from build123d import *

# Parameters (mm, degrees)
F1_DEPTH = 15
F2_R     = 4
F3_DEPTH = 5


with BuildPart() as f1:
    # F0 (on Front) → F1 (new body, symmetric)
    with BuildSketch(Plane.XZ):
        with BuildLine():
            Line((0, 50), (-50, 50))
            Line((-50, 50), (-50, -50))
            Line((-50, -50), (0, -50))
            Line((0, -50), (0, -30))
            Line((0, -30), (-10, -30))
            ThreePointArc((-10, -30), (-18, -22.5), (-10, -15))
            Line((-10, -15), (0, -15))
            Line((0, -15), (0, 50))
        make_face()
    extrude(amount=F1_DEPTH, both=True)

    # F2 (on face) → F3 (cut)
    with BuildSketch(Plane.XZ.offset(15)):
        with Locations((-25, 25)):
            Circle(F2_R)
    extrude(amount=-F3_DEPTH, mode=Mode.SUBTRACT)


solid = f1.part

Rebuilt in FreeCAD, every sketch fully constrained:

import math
import FreeCAD as App
import Part
import Sketcher
from FreeCAD import Vector

doc = App.newDocument("Part")
params = doc.addObject("Spreadsheet::Sheet", "Params")
for row, (alias, value) in enumerate([
    ("sketch1_width", "50 mm"),
    ("sketch1_width2", "10 mm"),
    ("sketch1_height", "100 mm"),
    ("sketch1_height2", "20 mm"),
    ("sketch1_height3", "65 mm"),
    ("pad1_length", "30 mm"),
    ("sketch2_diameter", "8 mm"),
    ("pocket1_length", "5 mm"),
], start=1):
    params.set(f"A{row}", alias)
    params.set(f"B{row}", "=" + value)
    params.setAlias(f"B{row}", alias)

body = doc.addObject("PartDesign::Body", "Body")

# Sketch on XZ plane
sketch1 = doc.addObject("Sketcher::SketchObject", "Sketch")
body.addObject(sketch1)
sketch1.AttachmentSupport = (doc.XZ_Plane, [""])
sketch1.MapMode = "FlatFace"
sketch1.addGeometry([
    Part.LineSegment(Vector(0, 50, 0), Vector(-50, 50, 0)),  # 0
    Part.LineSegment(Vector(-50, 50, 0), Vector(-50, -50, 0)),  # 1
    Part.LineSegment(Vector(-50, -50, 0), Vector(0, -50, 0)),  # 2
    Part.LineSegment(Vector(0, -50, 0), Vector(0, -30, 0)),  # 3
    Part.LineSegment(Vector(0, -30, 0), Vector(-10, -30, 0)),  # 4
    Part.ArcOfCircle(Part.Circle(Vector(-10.484375, -22.5, 0), Vector(0, 0, 1), 7.515625), math.radians(86.304779), math.radians(273.695221)),  # 5
    Part.LineSegment(Vector(-10, -15, 0), Vector(0, -15, 0)),  # 6
    Part.LineSegment(Vector(0, -15, 0), Vector(0, 50, 0)),  # 7
], False)
sketch1.addConstraint([
    Sketcher.Constraint("Coincident", 0, 2, 1, 1),
    Sketcher.Constraint("Coincident", 1, 2, 2, 1),
    Sketcher.Constraint("Coincident", 2, 2, 3, 1),
    Sketcher.Constraint("Coincident", 3, 2, 4, 1),
    Sketcher.Constraint("Coincident", 4, 2, 5, 2),
    Sketcher.Constraint("Coincident", 5, 1, 6, 1),
    Sketcher.Constraint("Coincident", 6, 2, 7, 1),
    Sketcher.Constraint("Coincident", 7, 2, 0, 1),
    Sketcher.Constraint("Horizontal", 0),
    Sketcher.Constraint("Vertical", 1),
    Sketcher.Constraint("Horizontal", 2),
    Sketcher.Constraint("Vertical", 3),
    Sketcher.Constraint("Horizontal", 4),
    Sketcher.Constraint("Horizontal", 6),
    Sketcher.Constraint("Vertical", 7),
    Sketcher.Constraint("Symmetric", 2, 2, 7, 2, -1, 1),
    Sketcher.Constraint("PointOnObject", 2, 2, -2),
    Sketcher.Constraint("Vertical", 4, 2, 5, 1),
    Sketcher.Constraint("DistanceX", 0, 2, 0, 1, 50.0),
    Sketcher.Constraint("DistanceX", 4, 2, 4, 1, 10.0),
    Sketcher.Constraint("DistanceY", 1, 2, 1, 1, 100.0),
    Sketcher.Constraint("DistanceY", 3, 1, 3, 2, 20.0),
    Sketcher.Constraint("DistanceY", 7, 1, 7, 2, 65.0),
    Sketcher.Constraint("Radius", 5, 7.515625),
])
sketch1.setExpression("Constraints[18]", "Params.sketch1_width")
sketch1.setExpression("Constraints[19]", "Params.sketch1_width2")
sketch1.setExpression("Constraints[20]", "Params.sketch1_height")
sketch1.setExpression("Constraints[21]", "Params.sketch1_height2")
sketch1.setExpression("Constraints[22]", "Params.sketch1_height3")
pad1 = doc.addObject("PartDesign::Pad", "Pad")
body.addObject(pad1)
pad1.Profile = sketch1
pad1.setExpression("Length", "Params.pad1_length")
pad1.Midplane = True

# Sketch on XZ plane
sketch2 = doc.addObject("Sketcher::SketchObject", "Sketch001")
body.addObject(sketch2)
sketch2.AttachmentSupport = (doc.XZ_Plane, [""])
sketch2.MapMode = "FlatFace"
sketch2.AttachmentOffset = App.Placement(Vector(0, 0, 15), App.Rotation())
sketch2.addGeometry(Part.Circle(Vector(-25, 25, 0), Vector(0, 0, 1), 4), False)
sketch2.addConstraint([
    Sketcher.Constraint("Diameter", 0, 8.0),
    Sketcher.Constraint("DistanceX", 0, 3, -1, 1, 25.0),
    Sketcher.Constraint("DistanceY", -1, 1, 0, 3, 25.0),
])
sketch2.setExpression("Constraints[0]", "Params.sketch2_diameter")
pocket1 = doc.addObject("PartDesign::Pocket", "Pocket")
body.addObject(pocket1)
pocket1.Profile = sketch2
pocket1.setExpression("Length", "Params.pocket1_length")

doc.recompute()
